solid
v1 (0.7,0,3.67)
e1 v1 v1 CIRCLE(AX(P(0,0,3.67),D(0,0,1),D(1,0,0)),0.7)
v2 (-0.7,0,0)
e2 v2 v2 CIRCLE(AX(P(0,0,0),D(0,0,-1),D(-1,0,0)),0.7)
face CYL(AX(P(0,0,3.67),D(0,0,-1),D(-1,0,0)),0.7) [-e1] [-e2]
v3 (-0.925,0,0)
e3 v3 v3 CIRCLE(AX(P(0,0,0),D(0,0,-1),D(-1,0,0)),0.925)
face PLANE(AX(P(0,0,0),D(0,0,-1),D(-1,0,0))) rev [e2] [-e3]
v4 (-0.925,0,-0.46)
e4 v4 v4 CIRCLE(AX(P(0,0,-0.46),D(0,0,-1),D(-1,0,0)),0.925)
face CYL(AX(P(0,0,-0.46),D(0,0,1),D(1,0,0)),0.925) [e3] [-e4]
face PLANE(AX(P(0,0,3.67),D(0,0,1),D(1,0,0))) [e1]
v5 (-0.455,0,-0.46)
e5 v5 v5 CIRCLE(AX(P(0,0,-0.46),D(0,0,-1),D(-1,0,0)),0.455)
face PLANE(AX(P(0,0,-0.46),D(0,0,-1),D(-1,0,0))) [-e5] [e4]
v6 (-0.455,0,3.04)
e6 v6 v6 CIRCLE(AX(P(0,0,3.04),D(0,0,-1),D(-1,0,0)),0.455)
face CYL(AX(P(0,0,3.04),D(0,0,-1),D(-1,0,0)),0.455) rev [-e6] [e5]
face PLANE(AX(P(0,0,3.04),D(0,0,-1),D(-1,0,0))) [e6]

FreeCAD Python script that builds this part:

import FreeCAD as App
import Part
import Sketcher
from FreeCAD import Vector
Q = App.Units.Quantity

doc = App.newDocument("Part")
params = doc.addObject("Spreadsheet::Sheet", "Params")
for row, (alias, value) in enumerate([
    ("sketch1_diameter", "1.4 mm"),
    ("pad1_length", "3.67 mm"),
    ("sketch2_diameter", "1.85 mm"),
    ("pad2_length", "0.46 mm"),
    ("sketch3_diameter", "0.91 mm"),
    ("pocket1_length", "3.5 mm"),
], start=1):
    params.set(f"A{row}", alias)
    params.set(f"B{row}", "=" + value)
    params.setAlias(f"B{row}", alias)

body = doc.addObject("PartDesign::Body", "Body")

# Sketch on XY plane
sketch1 = body.newObject("Sketcher::SketchObject", "Sketch")
sketch1.AttachmentSupport = (doc.getObject("XY_Plane"), [""])
sketch1.MapMode = "FlatFace"
sketch1.addGeometry(Part.Circle(Vector(0, 0, 0), Vector(0, 0, 1), 0.7), False)
sketch1.addConstraint(Sketcher.Constraint("Coincident", 0, 3, -1, 1))
sketch1.addConstraint(Sketcher.Constraint("Diameter", 0, Q("1.4 mm")))
sketch1.setExpression("Constraints[1]", "Params.sketch1_diameter")
pad1 = body.newObject("PartDesign::Pad", "Pad")
pad1.Profile = sketch1
pad1.setExpression("Length", "Params.pad1_length")

# Sketch on XY plane
sketch2 = body.newObject("Sketcher::SketchObject", "Sketch001")
sketch2.AttachmentSupport = (doc.getObject("XY_Plane"), [""])
sketch2.MapMode = "FlatFace"
sketch2.addGeometry(Part.Circle(Vector(0, 0, 0), Vector(0, 0, 1), 0.925), False)
sketch2.addConstraint(Sketcher.Constraint("Coincident", 0, 3, -1, 1))
sketch2.addConstraint(Sketcher.Constraint("Diameter", 0, Q("1.85 mm")))
sketch2.setExpression("Constraints[1]", "Params.sketch2_diameter")
pad2 = body.newObject("PartDesign::Pad", "Pad001")
pad2.Profile = sketch2
pad2.setExpression("Length", "Params.pad2_length")
pad2.Reversed = True

# Sketch on XY plane
sketch3 = body.newObject("Sketcher::SketchObject", "Sketch002")
sketch3.AttachmentSupport = (doc.getObject("XY_Plane"), [""])
sketch3.MapMode = "FlatFace"
sketch3.AttachmentOffset = App.Placement(Vector(0, 0, -0.46), App.Rotation())
sketch3.addGeometry(Part.Circle(Vector(0, 0, 0), Vector(0, 0, 1), 0.455), False)
sketch3.addConstraint(Sketcher.Constraint("Coincident", 0, 3, -1, 1))
sketch3.addConstraint(Sketcher.Constraint("Diameter", 0, Q("0.91 mm")))
sketch3.setExpression("Constraints[1]", "Params.sketch3_diameter")
pocket1 = body.newObject("PartDesign::Pocket", "Pocket")
pocket1.Profile = sketch3
pocket1.setExpression("Length", "Params.pocket1_length")
pocket1.Reversed = True

doc.recompute()
